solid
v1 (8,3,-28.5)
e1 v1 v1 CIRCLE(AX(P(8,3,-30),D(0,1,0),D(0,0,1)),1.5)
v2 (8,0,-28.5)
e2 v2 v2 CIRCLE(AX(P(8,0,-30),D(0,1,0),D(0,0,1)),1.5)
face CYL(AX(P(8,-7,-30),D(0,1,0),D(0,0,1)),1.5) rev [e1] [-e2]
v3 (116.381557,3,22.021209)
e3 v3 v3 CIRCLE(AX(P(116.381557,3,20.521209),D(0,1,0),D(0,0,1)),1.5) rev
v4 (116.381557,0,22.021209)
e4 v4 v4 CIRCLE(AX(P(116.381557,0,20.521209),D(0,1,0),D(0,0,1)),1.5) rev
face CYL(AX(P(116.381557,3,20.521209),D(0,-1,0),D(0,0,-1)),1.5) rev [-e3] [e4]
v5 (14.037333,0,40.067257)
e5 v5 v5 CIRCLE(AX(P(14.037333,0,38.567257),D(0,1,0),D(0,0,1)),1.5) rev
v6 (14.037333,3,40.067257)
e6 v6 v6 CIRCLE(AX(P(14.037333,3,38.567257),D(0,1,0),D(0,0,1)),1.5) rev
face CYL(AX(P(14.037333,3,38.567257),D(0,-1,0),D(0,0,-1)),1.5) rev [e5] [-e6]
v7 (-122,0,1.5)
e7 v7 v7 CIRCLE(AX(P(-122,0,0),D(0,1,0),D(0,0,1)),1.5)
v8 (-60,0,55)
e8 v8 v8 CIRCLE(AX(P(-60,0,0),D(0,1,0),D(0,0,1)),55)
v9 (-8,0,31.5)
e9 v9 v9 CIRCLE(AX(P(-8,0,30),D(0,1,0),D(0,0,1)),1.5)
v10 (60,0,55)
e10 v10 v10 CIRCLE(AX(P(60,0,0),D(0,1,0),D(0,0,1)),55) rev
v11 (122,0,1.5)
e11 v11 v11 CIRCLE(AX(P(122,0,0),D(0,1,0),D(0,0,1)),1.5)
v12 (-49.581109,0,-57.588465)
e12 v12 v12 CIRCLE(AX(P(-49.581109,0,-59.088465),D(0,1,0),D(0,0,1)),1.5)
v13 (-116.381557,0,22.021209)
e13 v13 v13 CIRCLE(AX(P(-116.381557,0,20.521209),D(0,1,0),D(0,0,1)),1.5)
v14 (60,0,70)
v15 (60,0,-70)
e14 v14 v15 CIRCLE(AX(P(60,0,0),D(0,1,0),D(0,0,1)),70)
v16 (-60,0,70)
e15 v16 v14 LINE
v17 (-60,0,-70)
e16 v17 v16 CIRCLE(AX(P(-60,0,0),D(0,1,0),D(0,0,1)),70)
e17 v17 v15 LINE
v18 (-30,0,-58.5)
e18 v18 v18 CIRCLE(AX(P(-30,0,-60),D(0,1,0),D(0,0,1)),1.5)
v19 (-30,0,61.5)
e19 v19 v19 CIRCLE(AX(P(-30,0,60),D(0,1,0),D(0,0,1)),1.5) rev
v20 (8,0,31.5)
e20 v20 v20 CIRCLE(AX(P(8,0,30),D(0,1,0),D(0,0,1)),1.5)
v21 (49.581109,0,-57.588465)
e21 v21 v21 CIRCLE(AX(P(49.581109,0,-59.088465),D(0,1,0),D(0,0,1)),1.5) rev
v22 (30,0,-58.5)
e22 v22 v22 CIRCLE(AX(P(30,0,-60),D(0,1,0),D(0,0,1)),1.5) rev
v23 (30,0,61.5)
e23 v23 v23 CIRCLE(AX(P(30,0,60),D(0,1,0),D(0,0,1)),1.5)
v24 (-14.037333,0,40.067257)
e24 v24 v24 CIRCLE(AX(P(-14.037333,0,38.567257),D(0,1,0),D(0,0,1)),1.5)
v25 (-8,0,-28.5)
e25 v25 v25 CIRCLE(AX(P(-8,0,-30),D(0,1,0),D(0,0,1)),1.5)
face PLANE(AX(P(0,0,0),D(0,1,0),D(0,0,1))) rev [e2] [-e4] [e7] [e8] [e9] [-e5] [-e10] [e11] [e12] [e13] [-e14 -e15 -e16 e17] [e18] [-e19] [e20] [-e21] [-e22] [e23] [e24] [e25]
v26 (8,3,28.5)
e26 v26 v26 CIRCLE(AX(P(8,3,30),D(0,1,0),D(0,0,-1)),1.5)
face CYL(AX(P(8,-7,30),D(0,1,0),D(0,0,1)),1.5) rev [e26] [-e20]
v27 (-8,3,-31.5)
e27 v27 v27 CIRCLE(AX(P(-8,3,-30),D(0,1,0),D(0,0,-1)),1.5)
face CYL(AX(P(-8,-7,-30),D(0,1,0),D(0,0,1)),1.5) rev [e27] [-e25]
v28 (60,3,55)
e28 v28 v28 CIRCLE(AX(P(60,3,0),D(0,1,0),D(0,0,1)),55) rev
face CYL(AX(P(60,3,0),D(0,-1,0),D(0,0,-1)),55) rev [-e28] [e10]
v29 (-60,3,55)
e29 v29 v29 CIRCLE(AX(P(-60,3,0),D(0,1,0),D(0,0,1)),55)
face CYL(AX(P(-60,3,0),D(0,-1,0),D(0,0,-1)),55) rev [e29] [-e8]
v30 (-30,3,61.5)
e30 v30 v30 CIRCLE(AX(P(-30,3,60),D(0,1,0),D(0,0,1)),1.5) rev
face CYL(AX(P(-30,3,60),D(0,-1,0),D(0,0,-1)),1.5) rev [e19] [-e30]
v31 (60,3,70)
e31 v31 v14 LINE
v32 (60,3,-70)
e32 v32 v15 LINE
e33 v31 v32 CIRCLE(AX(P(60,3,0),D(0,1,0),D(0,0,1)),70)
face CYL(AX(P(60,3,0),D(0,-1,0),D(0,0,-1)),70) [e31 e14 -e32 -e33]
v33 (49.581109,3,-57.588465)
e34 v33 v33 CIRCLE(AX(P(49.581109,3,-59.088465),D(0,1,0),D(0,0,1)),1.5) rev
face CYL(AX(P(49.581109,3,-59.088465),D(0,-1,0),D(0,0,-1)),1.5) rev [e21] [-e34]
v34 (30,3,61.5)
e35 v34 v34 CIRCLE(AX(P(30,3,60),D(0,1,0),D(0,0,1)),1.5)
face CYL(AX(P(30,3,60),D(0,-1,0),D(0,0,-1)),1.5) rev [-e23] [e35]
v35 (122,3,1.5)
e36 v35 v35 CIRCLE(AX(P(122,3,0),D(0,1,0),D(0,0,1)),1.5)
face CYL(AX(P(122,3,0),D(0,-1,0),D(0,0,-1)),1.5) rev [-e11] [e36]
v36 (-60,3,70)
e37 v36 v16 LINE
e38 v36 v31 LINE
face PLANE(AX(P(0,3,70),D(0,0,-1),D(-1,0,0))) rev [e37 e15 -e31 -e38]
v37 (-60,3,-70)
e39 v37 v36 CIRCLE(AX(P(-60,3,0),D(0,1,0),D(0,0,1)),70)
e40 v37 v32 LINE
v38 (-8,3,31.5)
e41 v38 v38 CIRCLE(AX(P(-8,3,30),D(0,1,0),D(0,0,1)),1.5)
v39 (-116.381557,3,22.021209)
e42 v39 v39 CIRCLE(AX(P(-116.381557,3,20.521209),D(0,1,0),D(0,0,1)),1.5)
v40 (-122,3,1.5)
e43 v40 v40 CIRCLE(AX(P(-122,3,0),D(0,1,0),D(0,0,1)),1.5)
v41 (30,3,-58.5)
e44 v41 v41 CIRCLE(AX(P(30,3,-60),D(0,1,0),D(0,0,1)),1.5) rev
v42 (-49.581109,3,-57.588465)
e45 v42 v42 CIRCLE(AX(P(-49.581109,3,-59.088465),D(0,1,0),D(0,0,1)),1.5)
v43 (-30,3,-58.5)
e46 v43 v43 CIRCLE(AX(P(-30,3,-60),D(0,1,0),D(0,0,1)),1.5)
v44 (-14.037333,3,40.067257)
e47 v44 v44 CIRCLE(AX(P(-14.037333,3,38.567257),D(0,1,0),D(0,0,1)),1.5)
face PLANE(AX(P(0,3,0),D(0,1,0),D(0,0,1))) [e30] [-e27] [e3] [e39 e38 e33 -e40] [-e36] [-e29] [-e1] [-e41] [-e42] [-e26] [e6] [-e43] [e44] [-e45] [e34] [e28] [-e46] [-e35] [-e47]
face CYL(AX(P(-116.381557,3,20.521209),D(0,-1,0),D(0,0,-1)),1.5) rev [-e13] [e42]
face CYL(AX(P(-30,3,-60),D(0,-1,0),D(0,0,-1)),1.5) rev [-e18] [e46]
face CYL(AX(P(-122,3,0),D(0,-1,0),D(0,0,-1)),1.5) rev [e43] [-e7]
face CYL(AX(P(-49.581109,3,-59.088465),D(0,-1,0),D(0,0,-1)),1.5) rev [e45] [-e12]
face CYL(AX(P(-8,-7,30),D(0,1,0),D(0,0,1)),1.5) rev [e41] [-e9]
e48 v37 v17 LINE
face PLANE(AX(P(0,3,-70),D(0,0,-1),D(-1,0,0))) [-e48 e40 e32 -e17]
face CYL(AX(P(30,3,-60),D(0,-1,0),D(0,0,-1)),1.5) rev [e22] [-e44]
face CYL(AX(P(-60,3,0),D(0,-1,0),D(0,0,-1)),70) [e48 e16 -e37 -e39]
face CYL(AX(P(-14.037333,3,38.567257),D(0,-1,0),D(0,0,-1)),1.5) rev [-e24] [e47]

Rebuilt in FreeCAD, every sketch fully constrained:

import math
import FreeCAD as App
import Part
import Sketcher

V = App.Vector
Q = App.Units.Quantity

doc = App.newDocument("Part")
body = doc.addObject("PartDesign::Body", "Body")

# Sketch on XZ plane
sketch1 = body.newObject("Sketcher::SketchObject", "Sketch")
sketch1.AttachmentSupport = (doc.getObject("XZ_Plane"), [""])
sketch1.MapMode = "FlatFace"
sketch1.addGeometry(Part.LineSegment(V(60, -70, 0), V(-60, -70, 0)), False)
sketch1.addGeometry(Part.ArcOfCircle(Part.Circle(V(-60, 0, 0), V(0, 0, 1), 70), math.radians(90), math.radians(270)), False)
sketch1.addGeometry(Part.LineSegment(V(-60, 70, 0), V(60, 70, 0)), False)
sketch1.addGeometry(Part.ArcOfCircle(Part.Circle(V(60, 0, 0), V(0, 0, 1), 70), math.radians(-90), math.radians(90)), False)
sketch1.addGeometry(Part.Circle(V(30, 60, 0), V(0, 0, 1), 1.5), False)
sketch1.addGeometry(Part.Circle(V(14, 38.6, 0), V(0, 0, 1), 1.5), False)
sketch1.addGeometry(Part.Circle(V(116.4, 20.5, 0), V(0, 0, 1), 1.5), False)
sketch1.addGeometry(Part.Circle(V(-30, 60, 0), V(0, 0, 1), 1.5), False)
sketch1.addGeometry(Part.Circle(V(-14, 38.6, 0), V(0, 0, 1), 1.5), False)
sketch1.addGeometry(Part.Circle(V(-116.4, 20.5, 0), V(0, 0, 1), 1.5), False)
sketch1.addGeometry(Part.Circle(V(122, 0, 0), V(0, 0, 1), 1.5), False)
sketch1.addGeometry(Part.Circle(V(60, 0, 0), V(0, 0, 1), 55), False)
sketch1.addGeometry(Part.Circle(V(49.6, -59.1, 0), V(0, 0, 1), 1.5), False)
sketch1.addGeometry(Part.Circle(V(30, -60, 0), V(0, 0, 1), 1.5), False)
sketch1.addGeometry(Part.Circle(V(-60, 0, 0), V(0, 0, 1), 55), False)
sketch1.addGeometry(Part.Circle(V(-122, 0, 0), V(0, 0, 1), 1.5), False)
sketch1.addGeometry(Part.Circle(V(-30, -60, 0), V(0, 0, 1), 1.5), False)
sketch1.addGeometry(Part.Circle(V(-49.6, -59.1, 0), V(0, 0, 1), 1.5), False)
sketch1.addConstraint(Sketcher.Constraint("Tangent", 0, 2, 1, 2))
sketch1.addConstraint(Sketcher.Constraint("Tangent", 1, 1, 2, 1))
sketch1.addConstraint(Sketcher.Constraint("Tangent", 2, 2, 3, 2))
sketch1.addConstraint(Sketcher.Constraint("Tangent", 3, 1, 0, 1))
sketch1.addConstraint(Sketcher.Constraint("Horizontal", 0))
sketch1.addConstraint(Sketcher.Constraint("Horizontal", 2))
sketch1.addConstraint(Sketcher.Constraint("Coincident", 11, 3, 3, 3))
sketch1.addConstraint(Sketcher.Constraint("Coincident", 14, 3, 1, 3))
sketch1.addConstraint(Sketcher.Constraint("Equal", 4, 5))
sketch1.addConstraint(Sketcher.Constraint("Equal", 5, 6))
sketch1.addConstraint(Sketcher.Constraint("Equal", 6, 7))
sketch1.addConstraint(Sketcher.Constraint("Equal", 7, 8))
sketch1.addConstraint(Sketcher.Constraint("Equal", 8, 9))
sketch1.addConstraint(Sketcher.Constraint("Equal", 9, 10))
sketch1.addConstraint(Sketcher.Constraint("Equal", 10, 12))
sketch1.addConstraint(Sketcher.Constraint("Equal", 12, 13))
sketch1.addConstraint(Sketcher.Constraint("Equal", 11, 14))
sketch1.addConstraint(Sketcher.Constraint("Equal", 13, 15))
sketch1.addConstraint(Sketcher.Constraint("Equal", 15, 16))
sketch1.addConstraint(Sketcher.Constraint("Equal", 16, 17))
sketch1.addConstraint(Sketcher.Constraint("Symmetric", 1, 3, 3, 3, -1, 1))
sketch1.addConstraint(Sketcher.Constraint("Symmetric", 7, 3, 13, 3, -1, 1))
sketch1.addConstraint(Sketcher.Constraint("Symmetric", 10, 3, 15, 3, -1, 1))
sketch1.addConstraint(Sketcher.Constraint("Symmetric", 4, 3, 16, 3, -1, 1))
sketch1.addConstraint(Sketcher.Constraint("Symmetric", 4, 3, 7, 3, -2))
sketch1.addConstraint(Sketcher.Constraint("Symmetric", 5, 3, 8, 3, -2))
sketch1.addConstraint(Sketcher.Constraint("Symmetric", 6, 3, 9, 3, -2))
sketch1.addConstraint(Sketcher.Constraint("Symmetric", 12, 3, 17, 3, -2))
sketch1.addConstraint(Sketcher.Constraint("PointOnObject", 10, 3, -1))
sketch1.addConstraint(Sketcher.Constraint("Diameter", 4, Q("3 mm")))
sketch1.addConstraint(Sketcher.Constraint("Diameter", 11, Q("110 mm")))
sketch1.addConstraint(Sketcher.Constraint("Radius", 1, Q("70 mm")))
sketch1.addConstraint(Sketcher.Constraint("DistanceX", 0, 2, 0, 1, Q("120 mm")))
sketch1.addConstraint(Sketcher.Constraint("DistanceX", -1, 1, 4, 3, Q("30 mm")))
sketch1.addConstraint(Sketcher.Constraint("DistanceY", -1, 1, 4, 3, Q("60 mm")))
sketch1.addConstraint(Sketcher.Constraint("DistanceX", -1, 1, 10, 3, Q("122 mm")))
sketch1.addConstraint(Sketcher.Constraint("DistanceY", -1, 1, 6, 3, Q("20.521209 mm")))
sketch1.addConstraint(Sketcher.Constraint("DistanceX", -1, 1, 12, 3, Q("49.581109 mm")))
sketch1.addConstraint(Sketcher.Constraint("DistanceX", 9, 3, 5, 3, Q("130.418891 mm")))
sketch1.addConstraint(Sketcher.Constraint("DistanceY", 12, 3, 5, 3, Q("97.655722 mm")))
sketch1.addConstraint(Sketcher.Constraint("DistanceX", -1, 1, 5, 3, Q("14.037333 mm")))
sketch1.addConstraint(Sketcher.Constraint("DistanceY", -1, 1, 5, 3, Q("38.567257 mm")))
pad1 = body.newObject("PartDesign::Pad", "Pad")
pad1.Profile = sketch1
pad1.Length = 3
pad1.Reversed = True

# Sketch on XZ plane
sketch2 = body.newObject("Sketcher::SketchObject", "Sketch001")
sketch2.AttachmentSupport = (doc.getObject("XZ_Plane"), [""])
sketch2.MapMode = "FlatFace"
sketch2.AttachmentOffset = App.Placement(V(0, 0, -3), App.Rotation())
sketch2.addGeometry(Part.Circle(V(-8, 30, 0), V(0, 0, 1), 1.5), False)
sketch2.addGeometry(Part.Circle(V(8, 30, 0), V(0, 0, 1), 1.5), False)
sketch2.addGeometry(Part.Circle(V(8, -30, 0), V(0, 0, 1), 1.5), False)
sketch2.addGeometry(Part.Circle(V(-8, -30, 0), V(0, 0, 1), 1.5), False)
sketch2.addConstraint(Sketcher.Constraint("Equal", 0, 1))
sketch2.addConstraint(Sketcher.Constraint("Equal", 1, 2))
sketch2.addConstraint(Sketcher.Constraint("Equal", 2, 3))
sketch2.addConstraint(Sketcher.Constraint("Symmetric", 0, 3, 2, 3, -1, 1))
sketch2.addConstraint(Sketcher.Constraint("Symmetric", 1, 3, 3, 3, -1, 1))
sketch2.addConstraint(Sketcher.Constraint("Symmetric", 0, 3, 1, 3, -2))
sketch2.addConstraint(Sketcher.Constraint("Diameter", 0, Q("3 mm")))
sketch2.addConstraint(Sketcher.Constraint("DistanceX", 0, 3, -1, 1, Q("8 mm")))
sketch2.addConstraint(Sketcher.Constraint("DistanceY", -1, 1, 0, 3, Q("30 mm")))
pocket1 = body.newObject("PartDesign::Pocket", "Pocket")
pocket1.Profile = sketch2
pocket1.Length = 10
pocket1.Reversed = True

doc.recompute()
